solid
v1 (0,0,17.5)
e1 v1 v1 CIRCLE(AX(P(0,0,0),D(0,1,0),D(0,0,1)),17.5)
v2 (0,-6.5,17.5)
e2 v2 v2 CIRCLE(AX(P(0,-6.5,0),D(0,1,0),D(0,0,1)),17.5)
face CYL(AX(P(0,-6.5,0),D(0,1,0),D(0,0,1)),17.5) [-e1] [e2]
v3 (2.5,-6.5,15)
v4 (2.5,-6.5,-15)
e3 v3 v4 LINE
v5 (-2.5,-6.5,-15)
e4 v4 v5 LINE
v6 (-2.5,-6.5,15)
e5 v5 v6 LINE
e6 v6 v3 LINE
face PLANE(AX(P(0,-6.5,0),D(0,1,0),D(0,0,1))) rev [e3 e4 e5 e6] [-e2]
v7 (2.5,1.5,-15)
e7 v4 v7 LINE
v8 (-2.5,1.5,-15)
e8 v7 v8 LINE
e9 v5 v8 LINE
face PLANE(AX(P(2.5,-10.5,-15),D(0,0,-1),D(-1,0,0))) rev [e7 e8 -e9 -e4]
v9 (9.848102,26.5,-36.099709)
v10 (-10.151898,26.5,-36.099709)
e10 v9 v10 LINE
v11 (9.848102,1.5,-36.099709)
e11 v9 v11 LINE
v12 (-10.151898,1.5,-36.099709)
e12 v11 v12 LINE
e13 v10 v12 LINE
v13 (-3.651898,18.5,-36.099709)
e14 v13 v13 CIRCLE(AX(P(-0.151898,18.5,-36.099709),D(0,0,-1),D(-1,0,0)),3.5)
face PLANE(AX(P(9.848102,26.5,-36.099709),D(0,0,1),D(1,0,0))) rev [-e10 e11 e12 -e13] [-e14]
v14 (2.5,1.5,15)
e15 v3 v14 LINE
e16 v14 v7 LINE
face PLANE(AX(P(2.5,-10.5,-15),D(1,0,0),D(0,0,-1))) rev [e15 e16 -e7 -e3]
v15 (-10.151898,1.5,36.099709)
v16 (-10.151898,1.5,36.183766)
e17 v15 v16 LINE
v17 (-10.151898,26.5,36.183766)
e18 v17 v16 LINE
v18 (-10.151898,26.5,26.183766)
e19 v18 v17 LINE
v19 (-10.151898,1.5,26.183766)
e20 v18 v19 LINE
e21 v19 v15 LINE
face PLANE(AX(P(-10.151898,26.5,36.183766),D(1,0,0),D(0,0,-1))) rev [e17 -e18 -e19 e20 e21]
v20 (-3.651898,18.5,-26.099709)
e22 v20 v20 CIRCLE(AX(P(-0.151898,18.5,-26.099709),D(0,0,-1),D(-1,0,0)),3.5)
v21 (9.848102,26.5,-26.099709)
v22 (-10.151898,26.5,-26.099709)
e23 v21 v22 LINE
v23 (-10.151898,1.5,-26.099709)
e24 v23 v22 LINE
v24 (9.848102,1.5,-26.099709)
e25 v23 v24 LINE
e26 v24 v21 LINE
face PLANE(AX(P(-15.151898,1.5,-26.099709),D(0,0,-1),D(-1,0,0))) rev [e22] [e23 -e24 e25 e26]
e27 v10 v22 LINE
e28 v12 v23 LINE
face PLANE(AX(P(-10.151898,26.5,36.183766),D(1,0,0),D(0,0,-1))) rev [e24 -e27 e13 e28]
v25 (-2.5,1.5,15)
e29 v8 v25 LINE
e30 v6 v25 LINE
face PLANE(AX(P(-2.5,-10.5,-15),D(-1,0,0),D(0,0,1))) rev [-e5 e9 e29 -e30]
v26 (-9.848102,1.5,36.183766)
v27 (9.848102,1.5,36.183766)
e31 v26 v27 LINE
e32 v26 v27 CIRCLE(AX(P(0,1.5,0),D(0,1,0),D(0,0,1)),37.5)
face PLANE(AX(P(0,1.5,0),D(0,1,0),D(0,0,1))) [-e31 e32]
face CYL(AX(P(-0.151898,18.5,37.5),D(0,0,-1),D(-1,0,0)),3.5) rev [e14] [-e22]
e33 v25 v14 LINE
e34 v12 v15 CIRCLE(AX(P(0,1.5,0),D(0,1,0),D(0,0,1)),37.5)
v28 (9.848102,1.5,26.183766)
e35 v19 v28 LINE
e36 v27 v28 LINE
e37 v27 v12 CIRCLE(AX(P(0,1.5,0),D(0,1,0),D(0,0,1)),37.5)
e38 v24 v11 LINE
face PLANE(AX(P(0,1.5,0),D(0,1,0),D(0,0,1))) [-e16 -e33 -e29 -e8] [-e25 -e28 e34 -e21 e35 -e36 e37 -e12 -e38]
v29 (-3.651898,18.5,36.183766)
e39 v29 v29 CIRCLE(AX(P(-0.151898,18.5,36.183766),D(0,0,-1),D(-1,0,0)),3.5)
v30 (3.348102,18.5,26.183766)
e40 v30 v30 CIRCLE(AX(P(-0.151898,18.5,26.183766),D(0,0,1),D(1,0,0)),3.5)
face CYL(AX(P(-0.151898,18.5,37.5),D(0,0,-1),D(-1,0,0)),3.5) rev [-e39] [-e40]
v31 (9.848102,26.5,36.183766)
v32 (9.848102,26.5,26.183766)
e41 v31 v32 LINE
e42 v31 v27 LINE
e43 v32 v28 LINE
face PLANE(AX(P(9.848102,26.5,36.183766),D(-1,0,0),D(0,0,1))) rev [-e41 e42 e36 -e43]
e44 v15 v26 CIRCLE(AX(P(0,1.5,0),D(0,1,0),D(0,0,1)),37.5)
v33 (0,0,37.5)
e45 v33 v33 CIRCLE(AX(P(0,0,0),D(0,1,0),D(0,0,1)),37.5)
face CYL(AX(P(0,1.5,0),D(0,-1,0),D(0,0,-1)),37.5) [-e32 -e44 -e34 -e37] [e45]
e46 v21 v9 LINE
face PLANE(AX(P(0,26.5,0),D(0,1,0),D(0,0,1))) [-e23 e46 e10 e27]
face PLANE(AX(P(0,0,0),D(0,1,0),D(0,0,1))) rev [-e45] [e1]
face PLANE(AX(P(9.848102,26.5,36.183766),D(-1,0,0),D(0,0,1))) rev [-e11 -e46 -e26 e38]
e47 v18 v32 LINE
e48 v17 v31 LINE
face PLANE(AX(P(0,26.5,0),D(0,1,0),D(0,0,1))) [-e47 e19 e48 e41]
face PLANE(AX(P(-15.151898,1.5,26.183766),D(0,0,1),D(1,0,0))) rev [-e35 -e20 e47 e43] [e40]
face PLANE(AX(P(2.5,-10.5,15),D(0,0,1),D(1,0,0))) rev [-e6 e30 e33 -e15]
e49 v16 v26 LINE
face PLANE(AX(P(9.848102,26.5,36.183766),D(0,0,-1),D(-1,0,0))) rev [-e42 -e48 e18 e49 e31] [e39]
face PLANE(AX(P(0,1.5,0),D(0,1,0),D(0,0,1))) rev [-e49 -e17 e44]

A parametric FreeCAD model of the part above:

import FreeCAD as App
import Part
import Sketcher

doc = App.newDocument("Part")
params = doc.addObject("Spreadsheet::Sheet", "Params")
for row, (alias, value) in enumerate([
    ("sketch1_diameter", "75 mm"),
    ("pad1_length", "1.5 mm"),
    ("sketch2_diameter", "35 mm"),
    ("pad2_length", "8 mm"),
    ("sketch3_width", "20 mm"),
    ("pad3_length", "25 mm"),
    ("sketch4_width", "25 mm"),
    ("pocket1_length", "25 mm"),
    ("sketch5_diameter", "7 mm"),
    ("sketch6_width", "5 mm"),
    ("sketch6_height", "30 mm"),
    ("pocket3_length", "12 mm"),
], start=1):
    params.set(f"A{row}", alias)
    params.set(f"B{row}", "=" + value)
    params.setAlias(f"B{row}", alias)

body = doc.addObject("PartDesign::Body", "Body")

# Sketch on XZ plane
sketch1 = body.newObject("Sketcher::SketchObject", "Sketch")
sketch1.AttachmentSupport = (doc.getObject("XZ_Plane"), [""])
sketch1.MapMode = "FlatFace"
sketch1.addGeometry(Part.Circle(App.Vector(0, 0, 0), App.Vector(0, 0, 1), 38), False)
sketch1.addConstraint(Sketcher.Constraint("Coincident", 0, 3, -1, 1))
sketch1.addConstraint(Sketcher.Constraint("Diameter", 0, 75.0))
sketch1.setExpression("Constraints[1]", "Params.sketch1_diameter")
pad1 = body.newObject("PartDesign::Pad", "Pad")
pad1.Profile = sketch1
pad1.setExpression("Length", "Params.pad1_length")
pad1.Reversed = True

# Sketch on XZ plane
sketch2 = body.newObject("Sketcher::SketchObject", "Sketch001")
sketch2.AttachmentSupport = (doc.getObject("XZ_Plane"), [""])
sketch2.MapMode = "FlatFace"
sketch2.AttachmentOffset = App.Placement(App.Vector(0, 0, -1.5), App.Rotation())
sketch2.addGeometry(Part.Circle(App.Vector(0, 0, 0), App.Vector(0, 0, 1), 18), False)
sketch2.addConstraint(Sketcher.Constraint("Coincident", 0, 3, -1, 1))
sketch2.addConstraint(Sketcher.Constraint("Diameter", 0, 35.0))
sketch2.setExpression("Constraints[1]", "Params.sketch2_diameter")
pad2 = body.newObject("PartDesign::Pad", "Pad001")
pad2.Profile = sketch2
pad2.setExpression("Length", "Params.pad2_length")

# Sketch on XZ plane
sketch3 = body.newObject("Sketcher::SketchObject", "Sketch002")
sketch3.AttachmentSupport = (doc.getObject("XZ_Plane"), [""])
sketch3.MapMode = "FlatFace"
sketch3.AttachmentOffset = App.Placement(App.Vector(0, 0, -1.5), App.Rotation())
sketch3.addGeometry(Part.LineSegment(App.Vector(-10, -36, 0), App.Vector(-10, 36, 0)), False)
sketch3.addGeometry(Part.LineSegment(App.Vector(-10, 36, 0), App.Vector(10, 36, 0)), False)
sketch3.addGeometry(Part.LineSegment(App.Vector(10, 36, 0), App.Vector(10, -36, 0)), False)
sketch3.addGeometry(Part.LineSegment(App.Vector(10, -36, 0), App.Vector(-10, -36, 0)), False)
sketch3.addConstraint(Sketcher.Constraint("Coincident", 0, 2, 1, 1))
sketch3.addConstraint(Sketcher.Constraint("Coincident", 1, 2, 2, 1))
sketch3.addConstraint(Sketcher.Constraint("Coincident", 2, 2, 3, 1))
sketch3.addConstraint(Sketcher.Constraint("Coincident", 3, 2, 0, 1))
sketch3.addConstraint(Sketcher.Constraint("Vertical", 0))
sketch3.addConstraint(Sketcher.Constraint("Horizontal", 1))
sketch3.addConstraint(Sketcher.Constraint("Vertical", 2))
sketch3.addConstraint(Sketcher.Constraint("Horizontal", 3))
sketch3.addConstraint(Sketcher.Constraint("DistanceX", 1, 1, 1, 2, 20.0))
sketch3.addConstraint(Sketcher.Constraint("DistanceX", 0, 2, -1, 1, 10.151898))
sketch3.addConstraint(Sketcher.Constraint("DistanceY", 0, 1, 0, 2, 72.283474))
sketch3.addConstraint(Sketcher.Constraint("DistanceY", 2, 2, -1, 1, 36.099709))
sketch3.setExpression("Constraints[8]", "Params.sketch3_width")
pad3 = body.newObject("PartDesign::Pad", "Pad002")
pad3.Profile = sketch3
pad3.setExpression("Length", "Params.pad3_length")
pad3.Reversed = True

# Sketch on YZ plane
sketch4 = body.newObject("Sketcher::SketchObject", "Sketch003")
sketch4.AttachmentSupport = (doc.getObject("YZ_Plane"), [""])
sketch4.MapMode = "FlatFace"
sketch4.AttachmentOffset = App.Placement(App.Vector(0, 0, 9.848102), App.Rotation())
sketch4.addGeometry(Part.LineSegment(App.Vector(26, 26, 0), App.Vector(2, 26, 0)), False)
sketch4.addGeometry(Part.LineSegment(App.Vector(2, 26, 0), App.Vector(2, -26, 0)), False)
sketch4.addGeometry(Part.LineSegment(App.Vector(2, -26, 0), App.Vector(26, -26, 0)), False)
sketch4.addGeometry(Part.LineSegment(App.Vector(26, -26, 0), App.Vector(26, 26, 0)), False)
sketch4.addConstraint(Sketcher.Constraint("Coincident", 0, 2, 1, 1))
sketch4.addConstraint(Sketcher.Constraint("Coincident", 1, 2, 2, 1))
sketch4.addConstraint(Sketcher.Constraint("Coincident", 2, 2, 3, 1))
sketch4.addConstraint(Sketcher.Constraint("Coincident", 3, 2, 0, 1))
sketch4.addConstraint(Sketcher.Constraint("Horizontal", 0))
sketch4.addConstraint(Sketcher.Constraint("Vertical", 1))
sketch4.addConstraint(Sketcher.Constraint("Horizontal", 2))
sketch4.addConstraint(Sketcher.Constraint("Vertical", 3))
sketch4.addConstraint(Sketcher.Constraint("DistanceX", 0, 2, 0, 1, 25.0))
sketch4.addConstraint(Sketcher.Constraint("DistanceX", -1, 1, 0, 2, 1.5))
sketch4.addConstraint(Sketcher.Constraint("DistanceY", 1, 2, 1, 1, 52.283474))
sketch4.addConstraint(Sketcher.Constraint("DistanceY", 1, 2, -1, 1, 26.099709))
sketch4.setExpression("Constraints[8]", "Params.sketch4_width")
pocket1 = body.newObject("PartDesign::Pocket", "Pocket")
pocket1.Profile = sketch4
pocket1.setExpression("Length", "Params.pocket1_length")

# Sketch on XY plane
sketch5 = body.newObject("Sketcher::SketchObject", "Sketch004")
sketch5.AttachmentSupport = (doc.getObject("XY_Plane"), [""])
sketch5.MapMode = "FlatFace"
sketch5.AttachmentOffset = App.Placement(App.Vector(0, 0, -36.099709), App.Rotation())
sketch5.addGeometry(Part.Circle(App.Vector(-0.2, 18.5, 0), App.Vector(0, 0, 1), 3.5), False)
sketch5.addConstraint(Sketcher.Constraint("Diameter", 0, 7.0))
sketch5.addConstraint(Sketcher.Constraint("DistanceY", -1, 1, 0, 3, 18.5))
sketch5.addConstraint(Sketcher.Constraint("DistanceX", 0, 3, -1, 1, 0.151898))
sketch5.setExpression("Constraints[0]", "Params.sketch5_diameter")
pocket2 = body.newObject("PartDesign::Pocket", "Pocket001")
pocket2.Profile = sketch5
pocket2.Type = "ThroughAll"
pocket2.Reversed = True

# Sketch on XZ plane
sketch6 = body.newObject("Sketcher::SketchObject", "Sketch005")
sketch6.AttachmentSupport = (doc.getObject("XZ_Plane"), [""])
sketch6.MapMode = "FlatFace"
sketch6.AttachmentOffset = App.Placement(App.Vector(0, 0, -1.5), App.Rotation())
sketch6.addGeometry(Part.LineSegment(App.Vector(-2, -15, 0), App.Vector(-2, 15, 0)), False)
sketch6.addGeometry(Part.LineSegment(App.Vector(-2, 15, 0), App.Vector(2, 15, 0)), False)
sketch6.addGeometry(Part.LineSegment(App.Vector(2, 15, 0), App.Vector(2, -15, 0)), False)
sketch6.addGeometry(Part.LineSegment(App.Vector(2, -15, 0), App.Vector(-2, -15, 0)), False)
sketch6.addConstraint(Sketcher.Constraint("Coincident", 0, 2, 1, 1))
sketch6.addConstraint(Sketcher.Constraint("Coincident", 1, 2, 2, 1))
sketch6.addConstraint(Sketcher.Constraint("Coincident", 2, 2, 3, 1))
sketch6.addConstraint(Sketcher.Constraint("Coincident", 3, 2, 0, 1))
sketch6.addConstraint(Sketcher.Constraint("Vertical", 0))
sketch6.addConstraint(Sketcher.Constraint("Horizontal", 1))
sketch6.addConstraint(Sketcher.Constraint("Vertical", 2))
sketch6.addConstraint(Sketcher.Constraint("Horizontal", 3))
sketch6.addConstraint(Sketcher.Constraint("Symmetric", 0, 2, 2, 2, -1, 1))
sketch6.addConstraint(Sketcher.Constraint("DistanceX", 1, 1, 1, 2, 5.0))
sketch6.addConstraint(Sketcher.Constraint("DistanceY", 0, 1, 0, 2, 30.0))
sketch6.setExpression("Constraints[9]", "Params.sketch6_width")
sketch6.setExpression("Constraints[10]", "Params.sketch6_height")
pocket3 = body.newObject("PartDesign::Pocket", "Pocket002")
pocket3.Profile = sketch6
pocket3.setExpression("Length", "Params.pocket3_length")
pocket3.Reversed = True

doc.recompute()
